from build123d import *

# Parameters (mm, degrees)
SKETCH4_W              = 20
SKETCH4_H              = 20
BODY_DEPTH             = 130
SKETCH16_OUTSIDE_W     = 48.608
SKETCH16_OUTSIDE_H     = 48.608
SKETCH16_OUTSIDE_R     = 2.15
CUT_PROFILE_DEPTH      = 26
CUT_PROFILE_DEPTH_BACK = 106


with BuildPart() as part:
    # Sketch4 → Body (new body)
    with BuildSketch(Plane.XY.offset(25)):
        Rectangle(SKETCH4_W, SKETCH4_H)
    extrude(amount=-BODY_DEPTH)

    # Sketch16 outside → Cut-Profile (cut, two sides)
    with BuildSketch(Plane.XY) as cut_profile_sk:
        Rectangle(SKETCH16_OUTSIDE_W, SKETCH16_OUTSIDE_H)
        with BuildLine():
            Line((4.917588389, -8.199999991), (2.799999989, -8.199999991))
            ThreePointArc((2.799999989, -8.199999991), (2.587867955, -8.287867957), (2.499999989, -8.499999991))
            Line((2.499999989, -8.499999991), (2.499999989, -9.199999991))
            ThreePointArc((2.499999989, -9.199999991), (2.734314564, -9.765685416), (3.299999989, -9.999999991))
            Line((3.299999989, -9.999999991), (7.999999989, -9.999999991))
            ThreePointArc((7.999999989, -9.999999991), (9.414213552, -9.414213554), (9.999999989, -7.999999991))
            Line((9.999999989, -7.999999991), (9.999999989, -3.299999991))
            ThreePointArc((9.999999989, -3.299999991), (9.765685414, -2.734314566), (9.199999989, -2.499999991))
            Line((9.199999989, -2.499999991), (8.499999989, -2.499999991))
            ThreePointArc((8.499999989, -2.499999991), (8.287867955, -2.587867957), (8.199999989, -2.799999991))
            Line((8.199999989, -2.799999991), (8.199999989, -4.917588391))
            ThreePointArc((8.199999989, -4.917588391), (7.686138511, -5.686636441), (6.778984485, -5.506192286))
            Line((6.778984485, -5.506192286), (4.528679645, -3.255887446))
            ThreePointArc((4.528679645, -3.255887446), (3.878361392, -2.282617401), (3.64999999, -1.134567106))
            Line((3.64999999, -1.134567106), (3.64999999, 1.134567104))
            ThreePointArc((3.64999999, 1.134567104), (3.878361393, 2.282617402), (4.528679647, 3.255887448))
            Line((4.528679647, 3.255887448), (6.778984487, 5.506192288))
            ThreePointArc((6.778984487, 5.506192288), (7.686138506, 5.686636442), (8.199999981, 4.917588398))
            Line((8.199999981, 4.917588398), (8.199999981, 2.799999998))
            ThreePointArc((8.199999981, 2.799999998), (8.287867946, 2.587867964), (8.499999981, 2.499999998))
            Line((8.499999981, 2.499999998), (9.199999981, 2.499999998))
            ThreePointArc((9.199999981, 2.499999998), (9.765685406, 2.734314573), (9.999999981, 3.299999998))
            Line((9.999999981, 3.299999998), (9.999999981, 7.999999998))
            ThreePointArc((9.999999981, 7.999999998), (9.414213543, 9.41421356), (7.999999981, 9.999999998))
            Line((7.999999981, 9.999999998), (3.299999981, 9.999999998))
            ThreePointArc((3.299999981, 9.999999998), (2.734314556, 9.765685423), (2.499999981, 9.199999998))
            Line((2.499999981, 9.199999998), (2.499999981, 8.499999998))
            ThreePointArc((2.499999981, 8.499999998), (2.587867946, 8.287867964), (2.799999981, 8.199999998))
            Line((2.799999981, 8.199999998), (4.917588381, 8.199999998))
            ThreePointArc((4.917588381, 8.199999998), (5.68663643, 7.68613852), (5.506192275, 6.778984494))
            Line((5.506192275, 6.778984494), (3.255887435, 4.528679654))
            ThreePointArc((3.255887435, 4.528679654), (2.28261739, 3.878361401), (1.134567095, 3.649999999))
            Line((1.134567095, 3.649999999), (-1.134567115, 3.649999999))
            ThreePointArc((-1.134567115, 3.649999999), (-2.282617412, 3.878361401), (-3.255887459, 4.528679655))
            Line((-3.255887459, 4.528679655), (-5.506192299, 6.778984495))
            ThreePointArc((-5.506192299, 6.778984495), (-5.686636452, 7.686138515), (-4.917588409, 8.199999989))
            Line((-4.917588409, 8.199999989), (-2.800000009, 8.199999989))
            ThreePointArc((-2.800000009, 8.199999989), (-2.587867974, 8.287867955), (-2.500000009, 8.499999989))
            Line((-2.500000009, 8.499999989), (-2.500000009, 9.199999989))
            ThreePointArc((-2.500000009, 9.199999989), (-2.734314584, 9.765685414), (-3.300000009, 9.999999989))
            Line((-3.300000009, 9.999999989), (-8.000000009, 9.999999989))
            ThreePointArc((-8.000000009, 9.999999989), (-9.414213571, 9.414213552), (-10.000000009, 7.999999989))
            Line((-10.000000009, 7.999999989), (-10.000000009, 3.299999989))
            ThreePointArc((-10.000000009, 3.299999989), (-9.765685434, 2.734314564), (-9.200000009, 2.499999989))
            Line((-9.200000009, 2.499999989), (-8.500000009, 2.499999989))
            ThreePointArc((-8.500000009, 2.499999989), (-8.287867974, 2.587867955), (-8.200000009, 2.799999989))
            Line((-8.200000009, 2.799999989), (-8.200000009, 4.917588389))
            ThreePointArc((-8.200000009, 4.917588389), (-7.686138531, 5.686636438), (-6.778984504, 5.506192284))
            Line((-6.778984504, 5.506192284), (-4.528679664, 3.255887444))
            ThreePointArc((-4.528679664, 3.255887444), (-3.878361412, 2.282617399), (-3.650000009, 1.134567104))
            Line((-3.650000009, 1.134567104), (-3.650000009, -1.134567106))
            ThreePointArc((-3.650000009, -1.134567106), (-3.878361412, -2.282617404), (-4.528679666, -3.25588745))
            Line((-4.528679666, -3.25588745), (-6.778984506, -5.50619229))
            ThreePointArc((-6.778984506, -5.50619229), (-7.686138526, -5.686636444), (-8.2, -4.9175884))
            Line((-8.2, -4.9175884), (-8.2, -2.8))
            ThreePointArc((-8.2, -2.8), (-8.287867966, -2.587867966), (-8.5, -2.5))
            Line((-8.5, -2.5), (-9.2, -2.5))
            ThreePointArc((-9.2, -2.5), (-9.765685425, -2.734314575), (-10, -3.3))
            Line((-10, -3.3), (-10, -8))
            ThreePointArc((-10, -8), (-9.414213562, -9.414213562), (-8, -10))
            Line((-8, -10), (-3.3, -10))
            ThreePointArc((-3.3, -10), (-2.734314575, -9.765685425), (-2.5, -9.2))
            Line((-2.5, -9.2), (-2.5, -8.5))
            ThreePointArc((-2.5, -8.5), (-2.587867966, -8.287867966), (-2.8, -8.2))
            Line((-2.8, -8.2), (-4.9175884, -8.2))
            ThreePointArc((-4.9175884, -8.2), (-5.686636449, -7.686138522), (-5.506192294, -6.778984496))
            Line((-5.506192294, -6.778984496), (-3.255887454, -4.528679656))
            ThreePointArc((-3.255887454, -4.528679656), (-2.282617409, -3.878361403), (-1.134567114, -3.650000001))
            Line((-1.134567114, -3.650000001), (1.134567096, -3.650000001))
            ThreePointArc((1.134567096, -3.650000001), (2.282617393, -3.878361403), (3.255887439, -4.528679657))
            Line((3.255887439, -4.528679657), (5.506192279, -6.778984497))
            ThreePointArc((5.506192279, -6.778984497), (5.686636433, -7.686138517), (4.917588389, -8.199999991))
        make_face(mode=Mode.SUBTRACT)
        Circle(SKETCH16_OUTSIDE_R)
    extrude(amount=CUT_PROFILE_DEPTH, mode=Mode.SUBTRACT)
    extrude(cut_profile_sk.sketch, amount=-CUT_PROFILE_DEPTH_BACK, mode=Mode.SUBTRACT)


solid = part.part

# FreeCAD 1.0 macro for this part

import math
import FreeCAD as App
import Part
import Sketcher

V = App.Vector
Q = App.Units.Quantity


def add_polygon(sketch, points):
    """Adds a closed chain of lines whose ends are joined by coincident constraints."""
    first, n = sketch.GeometryCount, len(points)
    for a, b in zip(points, points[1:] + points[:1]):
        sketch.addGeometry(Part.LineSegment(App.Vector(*a, 0), App.Vector(*b, 0)), False)
    for i in range(n):
        sketch.addConstraint(Sketcher.Constraint("Coincident", first + i, 2, first + (i + 1) % n, 1))

doc = App.newDocument("Part")
body = doc.addObject("PartDesign::Body", "Body")

# Sketch on XY plane
sketch1 = body.newObject("Sketcher::SketchObject", "Sketch")
sketch1.AttachmentSupport = (doc.getObject("XY_Plane"), [""])
sketch1.MapMode = "FlatFace"
sketch1.AttachmentOffset = App.Placement(V(0, 0, 25), App.Rotation())
add_polygon(sketch1, [(-10, 10), (-10, -10), (10, -10), (10, 10)])  # lines 0-3
sketch1.addConstraint([
    Sketcher.Constraint("Vertical", 0),
    Sketcher.Constraint("Horizontal", 1),
    Sketcher.Constraint("Vertical", 2),
    Sketcher.Constraint("Horizontal", 3),
    Sketcher.Constraint("Symmetric", 0, 2, 2, 2, -1, 1),
    Sketcher.Constraint("Equal", 3, 0),
    Sketcher.Constraint("DistanceX", 1, 1, 1, 2, Q("20 mm")),
])
pad1 = body.newObject("PartDesign::Pad", "Pad")
pad1.Profile = sketch1
pad1.Length = 130
pad1.Reversed = True

# Sketch on XY plane
sketch2 = body.newObject("Sketcher::SketchObject", "Sketch001")
sketch2.AttachmentSupport = (doc.getObject("XY_Plane"), [""])
sketch2.MapMode = "FlatFace"
add_polygon(sketch2, [(-24.3, 24.3), (-24.3, -24.3), (24.3, -24.3), (24.3, 24.3)])  # lines 0-3
sketch2.addGeometry(Part.LineSegment(V(2.8, -8.2, 0), V(4.92, -8.2, 0)), False)  # 4
sketch2.addGeometry(Part.ArcOfCircle(Part.Circle(V(4.92, -7.37, 0), V(0, 0, 1), 0.83), math.radians(-90), math.radians(45)), False)  # 5
sketch2.addGeometry(Part.LineSegment(V(5.51, -6.78, 0), V(3.26, -4.53, 0)), False)  # 6
sketch2.addGeometry(Part.ArcOfCircle(Part.Circle(V(1.13, -6.65, 0), V(0, 0, 1), 3), math.radians(45), math.radians(90)), False)  # 7
sketch2.addGeometry(Part.LineSegment(V(1.13, -3.65, 0), V(-1.13, -3.65, 0)), False)  # 8
sketch2.addGeometry(Part.ArcOfCircle(Part.Circle(V(-1.13, -6.65, 0), V(0, 0, 1), 3), math.radians(90), math.radians(135)), False)  # 9
sketch2.addGeometry(Part.LineSegment(V(-3.26, -4.53, 0), V(-5.51, -6.78, 0)), False)  # 10
sketch2.addGeometry(Part.ArcOfCircle(Part.Circle(V(-4.92, -7.37, 0), V(0, 0, 1), 0.83), math.radians(135), math.radians(270)), False)  # 11
sketch2.addGeometry(Part.LineSegment(V(-4.92, -8.2, 0), V(-2.8, -8.2, 0)), False)  # 12
sketch2.addGeometry(Part.ArcOfCircle(Part.Circle(V(-2.8, -8.5, 0), V(0, 0, 1), 0.3), math.radians(0), math.radians(90)), False)  # 13
sketch2.addGeometry(Part.LineSegment(V(-2.5, -8.5, 0), V(-2.5, -9.2, 0)), False)  # 14
sketch2.addGeometry(Part.ArcOfCircle(Part.Circle(V(-3.3, -9.2, 0), V(0, 0, 1), 0.8), math.radians(-90), math.radians(0)), False)  # 15
sketch2.addGeometry(Part.LineSegment(V(-3.3, -10, 0), V(-8, -10, 0)), False)  # 16
sketch2.addGeometry(Part.ArcOfCircle(Part.Circle(V(-8, -8, 0), V(0, 0, 1), 2), math.radians(-180), math.radians(-90)), False)  # 17
sketch2.addGeometry(Part.LineSegment(V(-10, -8, 0), V(-10, -3.3, 0)), False)  # 18
sketch2.addGeometry(Part.ArcOfCircle(Part.Circle(V(-9.2, -3.3, 0), V(0, 0, 1), 0.8), math.radians(90), math.radians(180)), False)  # 19
sketch2.addGeometry(Part.LineSegment(V(-9.2, -2.5, 0), V(-8.5, -2.5, 0)), False)  # 20
sketch2.addGeometry(Part.ArcOfCircle(Part.Circle(V(-8.5, -2.8, 0), V(0, 0, 1), 0.3), math.radians(0), math.radians(90)), False)  # 21
sketch2.addGeometry(Part.LineSegment(V(-8.2, -2.8, 0), V(-8.2, -4.92, 0)), False)  # 22
sketch2.addGeometry(Part.ArcOfCircle(Part.Circle(V(-7.37, -4.92, 0), V(0, 0, 1), 0.83), math.radians(180), math.radians(315)), False)  # 23
sketch2.addGeometry(Part.LineSegment(V(-6.78, -5.51, 0), V(-4.53, -3.26, 0)), False)  # 24
sketch2.addGeometry(Part.ArcOfCircle(Part.Circle(V(-6.65, -1.13, 0), V(0, 0, 1), 3), math.radians(-45), math.radians(0)), False)  # 25
sketch2.addGeometry(Part.LineSegment(V(-3.65, -1.13, 0), V(-3.65, 1.13, 0)), False)  # 26
sketch2.addGeometry(Part.ArcOfCircle(Part.Circle(V(-6.65, 1.13, 0), V(0, 0, 1), 3), math.radians(0), math.radians(45)), False)  # 27
sketch2.addGeometry(Part.LineSegment(V(-4.53, 3.26, 0), V(-6.78, 5.51, 0)), False)  # 28
sketch2.addGeometry(Part.ArcOfCircle(Part.Circle(V(-7.37, 4.92, 0), V(0, 0, 1), 0.83), math.radians(45), math.radians(180)), False)  # 29
sketch2.addGeometry(Part.LineSegment(V(-8.2, 4.92, 0), V(-8.2, 2.8, 0)), False)  # 30
sketch2.addGeometry(Part.ArcOfCircle(Part.Circle(V(-8.5, 2.8, 0), V(0, 0, 1), 0.3), math.radians(-90), math.radians(0)), False)  # 31
sketch2.addGeometry(Part.LineSegment(V(-8.5, 2.5, 0), V(-9.2, 2.5, 0)), False)  # 32
sketch2.addGeometry(Part.ArcOfCircle(Part.Circle(V(-9.2, 3.3, 0), V(0, 0, 1), 0.8), math.radians(180), math.radians(270)), False)  # 33
sketch2.addGeometry(Part.LineSegment(V(-10, 3.3, 0), V(-10, 8, 0)), False)  # 34
sketch2.addGeometry(Part.ArcOfCircle(Part.Circle(V(-8, 8, 0), V(0, 0, 1), 2), math.radians(90), math.radians(180)), False)  # 35
sketch2.addGeometry(Part.LineSegment(V(-8, 10, 0), V(-3.3, 10, 0)), False)  # 36
sketch2.addGeometry(Part.ArcOfCircle(Part.Circle(V(-3.3, 9.2, 0), V(0, 0, 1), 0.8), math.radians(0), math.radians(90)), False)  # 37
sketch2.addGeometry(Part.LineSegment(V(-2.5, 9.2, 0), V(-2.5, 8.5, 0)), False)  # 38
sketch2.addGeometry(Part.ArcOfCircle(Part.Circle(V(-2.8, 8.5, 0), V(0, 0, 1), 0.3), math.radians(-90), math.radians(0)), False)  # 39
sketch2.addGeometry(Part.LineSegment(V(-2.8, 8.2, 0), V(-4.92, 8.2, 0)), False)  # 40
sketch2.addGeometry(Part.ArcOfCircle(Part.Circle(V(-4.92, 7.37, 0), V(0, 0, 1), 0.83), math.radians(90), math.radians(225)), False)  # 41
sketch2.addGeometry(Part.LineSegment(V(-5.51, 6.78, 0), V(-3.26, 4.53, 0)), False)  # 42
sketch2.addGeometry(Part.ArcOfCircle(Part.Circle(V(-1.13, 6.65, 0), V(0, 0, 1), 3), math.radians(-135), math.radians(-90)), False)  # 43
sketch2.addGeometry(Part.LineSegment(V(-1.13, 3.65, 0), V(1.13, 3.65, 0)), False)  # 44
sketch2.addGeometry(Part.ArcOfCircle(Part.Circle(V(1.13, 6.65, 0), V(0, 0, 1), 3), math.radians(-90), math.radians(-45)), False)  # 45
sketch2.addGeometry(Part.LineSegment(V(3.26, 4.53, 0), V(5.51, 6.78, 0)), False)  # 46
sketch2.addGeometry(Part.ArcOfCircle(Part.Circle(V(4.92, 7.37, 0), V(0, 0, 1), 0.83), math.radians(-45), math.radians(90)), False)  # 47
sketch2.addGeometry(Part.LineSegment(V(4.92, 8.2, 0), V(2.8, 8.2, 0)), False)  # 48
sketch2.addGeometry(Part.ArcOfCircle(Part.Circle(V(2.8, 8.5, 0), V(0, 0, 1), 0.3), math.radians(180), math.radians(270)), False)  # 49
sketch2.addGeometry(Part.LineSegment(V(2.5, 8.5, 0), V(2.5, 9.2, 0)), False)  # 50
sketch2.addGeometry(Part.ArcOfCircle(Part.Circle(V(3.3, 9.2, 0), V(0, 0, 1), 0.8), math.radians(90), math.radians(180)), False)  # 51
sketch2.addGeometry(Part.LineSegment(V(3.3, 10, 0), V(8, 10, 0)), False)  # 52
sketch2.addGeometry(Part.ArcOfCircle(Part.Circle(V(8, 8, 0), V(0, 0, 1), 2), math.radians(0), math.radians(90)), False)  # 53
sketch2.addGeometry(Part.LineSegment(V(10, 8, 0), V(10, 3.3, 0)), False)  # 54
sketch2.addGeometry(Part.ArcOfCircle(Part.Circle(V(9.2, 3.3, 0), V(0, 0, 1), 0.8), math.radians(-90), math.radians(0)), False)  # 55
sketch2.addGeometry(Part.LineSegment(V(9.2, 2.5, 0), V(8.5, 2.5, 0)), False)  # 56
sketch2.addGeometry(Part.ArcOfCircle(Part.Circle(V(8.5, 2.8, 0), V(0, 0, 1), 0.3), math.radians(180), math.radians(270)), False)  # 57
sketch2.addGeometry(Part.LineSegment(V(8.2, 2.8, 0), V(8.2, 4.92, 0)), False)  # 58
sketch2.addGeometry(Part.ArcOfCircle(Part.Circle(V(7.37, 4.92, 0), V(0, 0, 1), 0.83), math.radians(0), math.radians(135)), False)  # 59
sketch2.addGeometry(Part.LineSegment(V(6.78, 5.51, 0), V(4.53, 3.26, 0)), False)  # 60
sketch2.addGeometry(Part.ArcOfCircle(Part.Circle(V(6.65, 1.13, 0), V(0, 0, 1), 3), math.radians(135), math.radians(180)), False)  # 61
sketch2.addGeometry(Part.LineSegment(V(3.65, 1.13, 0), V(3.65, -1.13, 0)), False)  # 62
sketch2.addGeometry(Part.ArcOfCircle(Part.Circle(V(6.65, -1.13, 0), V(0, 0, 1), 3), math.radians(180), math.radians(225)), False)  # 63
sketch2.addGeometry(Part.LineSegment(V(4.53, -3.26, 0), V(6.78, -5.51, 0)), False)  # 64
sketch2.addGeometry(Part.ArcOfCircle(Part.Circle(V(7.37, -4.92, 0), V(0, 0, 1), 0.83), math.radians(-135), math.radians(0)), False)  # 65
sketch2.addGeometry(Part.LineSegment(V(8.2, -4.92, 0), V(8.2, -2.8, 0)), False)  # 66
sketch2.addGeometry(Part.ArcOfCircle(Part.Circle(V(8.5, -2.8, 0), V(0, 0, 1), 0.3), math.radians(90), math.radians(180)), False)  # 67
sketch2.addGeometry(Part.LineSegment(V(8.5, -2.5, 0), V(9.2, -2.5, 0)), False)  # 68
sketch2.addGeometry(Part.ArcOfCircle(Part.Circle(V(9.2, -3.3, 0), V(0, 0, 1), 0.8), math.radians(0), math.radians(90)), False)  # 69
sketch2.addGeometry(Part.LineSegment(V(10, -3.3, 0), V(10, -8, 0)), False)  # 70
sketch2.addGeometry(Part.ArcOfCircle(Part.Circle(V(8, -8, 0), V(0, 0, 1), 2), math.radians(-90), math.radians(0)), False)  # 71
sketch2.addGeometry(Part.LineSegment(V(8, -10, 0), V(3.3, -10, 0)), False)  # 72
sketch2.addGeometry(Part.ArcOfCircle(Part.Circle(V(3.3, -9.2, 0), V(0, 0, 1), 0.8), math.radians(180), math.radians(270)), False)  # 73
sketch2.addGeometry(Part.LineSegment(V(2.5, -9.2, 0), V(2.5, -8.5, 0)), False)  # 74
sketch2.addGeometry(Part.ArcOfCircle(Part.Circle(V(2.8, -8.5, 0), V(0, 0, 1), 0.3), math.radians(90), math.radians(180)), False)  # 75
sketch2.addGeometry(Part.Circle(V(0, 0, 0), V(0, 0, 1), 2.15), False)  # 76
sketch2.addConstraint([
    Sketcher.Constraint("Tangent", 4, 2, 5, 1),
    Sketcher.Constraint("Tangent", 5, 2, 6, 1),
    Sketcher.Constraint("Tangent", 6, 2, 7, 1),
    Sketcher.Constraint("Tangent", 7, 2, 8, 1),
    Sketcher.Constraint("Tangent", 8, 2, 9, 1),
    Sketcher.Constraint("Tangent", 9, 2, 10, 1),
    Sketcher.Constraint("Tangent", 10, 2, 11, 1),
    Sketcher.Constraint("Tangent", 11, 2, 12, 1),
    Sketcher.Constraint("Tangent", 12, 2, 13, 2),
    Sketcher.Constraint("Tangent", 13, 1, 14, 1),
    Sketcher.Constraint("Tangent", 14, 2, 15, 2),
    Sketcher.Constraint("Tangent", 15, 1, 16, 1),
    Sketcher.Constraint("Tangent", 16, 2, 17, 2),
    Sketcher.Constraint("Tangent", 17, 1, 18, 1),
    Sketcher.Constraint("Tangent", 18, 2, 19, 2),
    Sketcher.Constraint("Tangent", 19, 1, 20, 1),
    Sketcher.Constraint("Tangent", 20, 2, 21, 2),
    Sketcher.Constraint("Tangent", 21, 1, 22, 1),
    Sketcher.Constraint("Tangent", 22, 2, 23, 1),
    Sketcher.Constraint("Tangent", 23, 2, 24, 1),
    Sketcher.Constraint("Tangent", 24, 2, 25, 1),
    Sketcher.Constraint("Tangent", 25, 2, 26, 1),
    Sketcher.Constraint("Tangent", 26, 2, 27, 1),
    Sketcher.Constraint("Tangent", 27, 2, 28, 1),
    Sketcher.Constraint("Tangent", 28, 2, 29, 1),
    Sketcher.Constraint("Tangent", 29, 2, 30, 1),
    Sketcher.Constraint("Tangent", 30, 2, 31, 2),
    Sketcher.Constraint("Tangent", 31, 1, 32, 1),
    Sketcher.Constraint("Tangent", 32, 2, 33, 2),
    Sketcher.Constraint("Tangent", 33, 1, 34, 1),
    Sketcher.Constraint("Tangent", 34, 2, 35, 2),
    Sketcher.Constraint("Tangent", 35, 1, 36, 1),
    Sketcher.Constraint("Tangent", 36, 2, 37, 2),
    Sketcher.Constraint("Tangent", 37, 1, 38, 1),
    Sketcher.Constraint("Tangent", 38, 2, 39, 2),
    Sketcher.Constraint("Tangent", 39, 1, 40, 1),
    Sketcher.Constraint("Tangent", 40, 2, 41, 1),
    Sketcher.Constraint("Tangent", 41, 2, 42, 1),
    Sketcher.Constraint("Tangent", 42, 2, 43, 1),
    Sketcher.Constraint("Tangent", 43, 2, 44, 1),
    Sketcher.Constraint("Tangent", 44, 2, 45, 1),
    Sketcher.Constraint("Tangent", 45, 2, 46, 1),
    Sketcher.Constraint("Tangent", 46, 2, 47, 1),
    Sketcher.Constraint("Tangent", 47, 2, 48, 1),
    Sketcher.Constraint("Tangent", 48, 2, 49, 2),
    Sketcher.Constraint("Tangent", 49, 1, 50, 1),
    Sketcher.Constraint("Tangent", 50, 2, 51, 2),
    Sketcher.Constraint("Tangent", 51, 1, 52, 1),
    Sketcher.Constraint("Tangent", 52, 2, 53, 2),
    Sketcher.Constraint("Tangent", 53, 1, 54, 1),
    Sketcher.Constraint("Tangent", 54, 2, 55, 2),
    Sketcher.Constraint("Tangent", 55, 1, 56, 1),
    Sketcher.Constraint("Tangent", 56, 2, 57, 2),
    Sketcher.Constraint("Tangent", 57, 1, 58, 1),
    Sketcher.Constraint("Tangent", 58, 2, 59, 1),
    Sketcher.Constraint("Tangent", 59, 2, 60, 1),
    Sketcher.Constraint("Tangent", 60, 2, 61, 1),
    Sketcher.Constraint("Tangent", 61, 2, 62, 1),
    Sketcher.Constraint("Tangent", 62, 2, 63, 1),
    Sketcher.Constraint("Tangent", 63, 2, 64, 1),
    Sketcher.Constraint("Tangent", 64, 2, 65, 1),
    Sketcher.Constraint("Tangent", 65, 2, 66, 1),
    Sketcher.Constraint("Tangent", 66, 2, 67, 2),
    Sketcher.Constraint("Tangent", 67, 1, 68, 1),
    Sketcher.Constraint("Tangent", 68, 2, 69, 2),
    Sketcher.Constraint("Tangent", 69, 1, 70, 1),
    Sketcher.Constraint("Tangent", 70, 2, 71, 2),
    Sketcher.Constraint("Tangent", 71, 1, 72, 1),
    Sketcher.Constraint("Tangent", 72, 2, 73, 2),
    Sketcher.Constraint("Tangent", 73, 1, 74, 1),
    Sketcher.Constraint("Tangent", 74, 2, 75, 2),
    Sketcher.Constraint("Tangent", 75, 1, 4, 1),
    Sketcher.Constraint("Vertical", 0),
    Sketcher.Constraint("Horizontal", 1),
    Sketcher.Constraint("Vertical", 2),
    Sketcher.Constraint("Horizontal", 3),
    Sketcher.Constraint("Horizontal", 4),
    Sketcher.Constraint("Horizontal", 8),
    Sketcher.Constraint("Horizontal", 12),
    Sketcher.Constraint("Vertical", 14),
    Sketcher.Constraint("Horizontal", 16),
    Sketcher.Constraint("Vertical", 18),
    Sketcher.Constraint("Horizontal", 20),
    Sketcher.Constraint("Vertical", 22),
    Sketcher.Constraint("Vertical", 26),
    Sketcher.Constraint("Vertical", 30),
    Sketcher.Constraint("Horizontal", 32),
    Sketcher.Constraint("Vertical", 34),
    Sketcher.Constraint("Horizontal", 36),
    Sketcher.Constraint("Vertical", 38),
    Sketcher.Constraint("Horizontal", 40),
    Sketcher.Constraint("Horizontal", 44),
    Sketcher.Constraint("Horizontal", 48),
    Sketcher.Constraint("Vertical", 50),
    Sketcher.Constraint("Horizontal", 52),
    Sketcher.Constraint("Vertical", 54),
    Sketcher.Constraint("Horizontal", 56),
    Sketcher.Constraint("Vertical", 58),
    Sketcher.Constraint("Vertical", 62),
    Sketcher.Constraint("Vertical", 66),
    Sketcher.Constraint("Horizontal", 68),
    Sketcher.Constraint("Vertical", 70),
    Sketcher.Constraint("Horizontal", 72),
    Sketcher.Constraint("Vertical", 74),
    Sketcher.Constraint("Coincident", 76, 3, -1, 1),
    Sketcher.Constraint("Equal", 7, 9),
    Sketcher.Constraint("Equal", 5, 11),
    Sketcher.Constraint("Equal", 15, 19),
    Sketcher.Constraint("Equal", 13, 21),
    Sketcher.Constraint("Equal", 11, 23),
    Sketcher.Constraint("Equal", 9, 25),
    Sketcher.Constraint("Equal", 25, 27),
    Sketcher.Constraint("Equal", 23, 29),
    Sketcher.Constraint("Equal", 21, 31),
    Sketcher.Constraint("Equal", 19, 33),
    Sketcher.Constraint("Equal", 17, 35),
    Sketcher.Constraint("Equal", 33, 37),
    Sketcher.Constraint("Equal", 31, 39),
    Sketcher.Constraint("Equal", 29, 41),
    Sketcher.Constraint("Equal", 27, 43),
    Sketcher.Constraint("Equal", 43, 45),
    Sketcher.Constraint("Equal", 41, 47),
    Sketcher.Constraint("Equal", 39, 49),
    Sketcher.Constraint("Equal", 37, 51),
    Sketcher.Constraint("Equal", 35, 53),
    Sketcher.Constraint("Equal", 51, 55),
    Sketcher.Constraint("Equal", 49, 57),
    Sketcher.Constraint("Equal", 47, 59),
    Sketcher.Constraint("Equal", 45, 61),
    Sketcher.Constraint("Equal", 61, 63),
    Sketcher.Constraint("Equal", 59, 65),
    Sketcher.Constraint("Equal", 57, 67),
    Sketcher.Constraint("Equal", 55, 69),
    Sketcher.Constraint("Equal", 53, 71),
    Sketcher.Constraint("Equal", 69, 73),
    Sketcher.Constraint("Equal", 67, 75),
    Sketcher.Constraint("Symmetric", 5, 3, 41, 3, -1, 1),
    Sketcher.Constraint("Symmetric", 7, 3, 43, 3, -1, 1),
    Sketcher.Constraint("Symmetric", 11, 3, 47, 3, -1, 1),
    Sketcher.Constraint("Symmetric", 15, 3, 51, 3, -1, 1),
    Sketcher.Constraint("Symmetric", 19, 3, 55, 3, -1, 1),
    Sketcher.Constraint("Symmetric", 23, 3, 59, 3, -1, 1),
    Sketcher.Constraint("Symmetric", 25, 3, 61, 3, -1, 1),
    Sketcher.Constraint("Symmetric", 29, 3, 65, 3, -1, 1),
    Sketcher.Constraint("Symmetric", 33, 3, 69, 3, -1, 1),
    Sketcher.Constraint("Symmetric", 37, 3, 73, 3, -1, 1),
    Sketcher.Constraint("Symmetric", 0, 2, 2, 2, -1, 1),
    Sketcher.Constraint("Symmetric", 5, 3, 11, 3, -2),
    Sketcher.Constraint("Symmetric", 37, 3, 51, 3, -2),
    Sketcher.Constraint("Symmetric", 33, 3, 55, 3, -2),
    Sketcher.Constraint("Symmetric", 29, 3, 59, 3, -2),
    Sketcher.Constraint("Perpendicular", 6, 10),
    Sketcher.Constraint("Parallel", 10, 24),
    Sketcher.Constraint("Perpendicular", 24, 28),
    Sketcher.Constraint("Perpendicular", 42, 46),
    Sketcher.Constraint("Perpendicular", 60, 64),
    Sketcher.Constraint("Horizontal", 27, 3, 61, 3),
    Sketcher.Constraint("Equal", 3, 0),
    Sketcher.Constraint("Equal", 68, 14),
    Sketcher.Constraint("Equal", 72, 18),
    Sketcher.Constraint("Equal", 48, 22),
    Sketcher.Constraint("Equal", 44, 26),
    Sketcher.Constraint("Equal", 10, 24),
    Sketcher.Constraint("Radius", 7, Q("3 mm")),
    Sketcher.Constraint("Radius", 17, Q("2 mm")),
    Sketcher.Constraint("Diameter", 76, Q("4.3 mm")),
    Sketcher.Constraint("Radius", 13, Q("0.3 mm")),
    Sketcher.Constraint("Radius", 15, Q("0.8 mm")),
    Sketcher.Constraint("DistanceX", 16, 2, 16, 1, Q("4.7 mm")),
    Sketcher.Constraint("DistanceX", 20, 1, 20, 2, Q("0.7 mm")),
    Sketcher.Constraint("DistanceX", 17, 3, -1, 1, Q("8 mm")),
    Sketcher.Constraint("DistanceX", 1, 1, 1, 2, Q("48.608 mm")),
    Sketcher.Constraint("DistanceY", 7, 3, -1, 1, Q("6.65 mm")),
    Sketcher.Constraint("Radius", 5, Q("0.832412 mm")),
    Sketcher.Constraint("DistanceX", 4, 1, 4, 2, Q("2.117588 mm")),
])
pocket1 = body.newObject("PartDesign::Pocket", "Pocket")
pocket1.Profile = sketch2
pocket1.Type = "ThroughAll"
pocket1.Midplane = True

doc.recompute()
